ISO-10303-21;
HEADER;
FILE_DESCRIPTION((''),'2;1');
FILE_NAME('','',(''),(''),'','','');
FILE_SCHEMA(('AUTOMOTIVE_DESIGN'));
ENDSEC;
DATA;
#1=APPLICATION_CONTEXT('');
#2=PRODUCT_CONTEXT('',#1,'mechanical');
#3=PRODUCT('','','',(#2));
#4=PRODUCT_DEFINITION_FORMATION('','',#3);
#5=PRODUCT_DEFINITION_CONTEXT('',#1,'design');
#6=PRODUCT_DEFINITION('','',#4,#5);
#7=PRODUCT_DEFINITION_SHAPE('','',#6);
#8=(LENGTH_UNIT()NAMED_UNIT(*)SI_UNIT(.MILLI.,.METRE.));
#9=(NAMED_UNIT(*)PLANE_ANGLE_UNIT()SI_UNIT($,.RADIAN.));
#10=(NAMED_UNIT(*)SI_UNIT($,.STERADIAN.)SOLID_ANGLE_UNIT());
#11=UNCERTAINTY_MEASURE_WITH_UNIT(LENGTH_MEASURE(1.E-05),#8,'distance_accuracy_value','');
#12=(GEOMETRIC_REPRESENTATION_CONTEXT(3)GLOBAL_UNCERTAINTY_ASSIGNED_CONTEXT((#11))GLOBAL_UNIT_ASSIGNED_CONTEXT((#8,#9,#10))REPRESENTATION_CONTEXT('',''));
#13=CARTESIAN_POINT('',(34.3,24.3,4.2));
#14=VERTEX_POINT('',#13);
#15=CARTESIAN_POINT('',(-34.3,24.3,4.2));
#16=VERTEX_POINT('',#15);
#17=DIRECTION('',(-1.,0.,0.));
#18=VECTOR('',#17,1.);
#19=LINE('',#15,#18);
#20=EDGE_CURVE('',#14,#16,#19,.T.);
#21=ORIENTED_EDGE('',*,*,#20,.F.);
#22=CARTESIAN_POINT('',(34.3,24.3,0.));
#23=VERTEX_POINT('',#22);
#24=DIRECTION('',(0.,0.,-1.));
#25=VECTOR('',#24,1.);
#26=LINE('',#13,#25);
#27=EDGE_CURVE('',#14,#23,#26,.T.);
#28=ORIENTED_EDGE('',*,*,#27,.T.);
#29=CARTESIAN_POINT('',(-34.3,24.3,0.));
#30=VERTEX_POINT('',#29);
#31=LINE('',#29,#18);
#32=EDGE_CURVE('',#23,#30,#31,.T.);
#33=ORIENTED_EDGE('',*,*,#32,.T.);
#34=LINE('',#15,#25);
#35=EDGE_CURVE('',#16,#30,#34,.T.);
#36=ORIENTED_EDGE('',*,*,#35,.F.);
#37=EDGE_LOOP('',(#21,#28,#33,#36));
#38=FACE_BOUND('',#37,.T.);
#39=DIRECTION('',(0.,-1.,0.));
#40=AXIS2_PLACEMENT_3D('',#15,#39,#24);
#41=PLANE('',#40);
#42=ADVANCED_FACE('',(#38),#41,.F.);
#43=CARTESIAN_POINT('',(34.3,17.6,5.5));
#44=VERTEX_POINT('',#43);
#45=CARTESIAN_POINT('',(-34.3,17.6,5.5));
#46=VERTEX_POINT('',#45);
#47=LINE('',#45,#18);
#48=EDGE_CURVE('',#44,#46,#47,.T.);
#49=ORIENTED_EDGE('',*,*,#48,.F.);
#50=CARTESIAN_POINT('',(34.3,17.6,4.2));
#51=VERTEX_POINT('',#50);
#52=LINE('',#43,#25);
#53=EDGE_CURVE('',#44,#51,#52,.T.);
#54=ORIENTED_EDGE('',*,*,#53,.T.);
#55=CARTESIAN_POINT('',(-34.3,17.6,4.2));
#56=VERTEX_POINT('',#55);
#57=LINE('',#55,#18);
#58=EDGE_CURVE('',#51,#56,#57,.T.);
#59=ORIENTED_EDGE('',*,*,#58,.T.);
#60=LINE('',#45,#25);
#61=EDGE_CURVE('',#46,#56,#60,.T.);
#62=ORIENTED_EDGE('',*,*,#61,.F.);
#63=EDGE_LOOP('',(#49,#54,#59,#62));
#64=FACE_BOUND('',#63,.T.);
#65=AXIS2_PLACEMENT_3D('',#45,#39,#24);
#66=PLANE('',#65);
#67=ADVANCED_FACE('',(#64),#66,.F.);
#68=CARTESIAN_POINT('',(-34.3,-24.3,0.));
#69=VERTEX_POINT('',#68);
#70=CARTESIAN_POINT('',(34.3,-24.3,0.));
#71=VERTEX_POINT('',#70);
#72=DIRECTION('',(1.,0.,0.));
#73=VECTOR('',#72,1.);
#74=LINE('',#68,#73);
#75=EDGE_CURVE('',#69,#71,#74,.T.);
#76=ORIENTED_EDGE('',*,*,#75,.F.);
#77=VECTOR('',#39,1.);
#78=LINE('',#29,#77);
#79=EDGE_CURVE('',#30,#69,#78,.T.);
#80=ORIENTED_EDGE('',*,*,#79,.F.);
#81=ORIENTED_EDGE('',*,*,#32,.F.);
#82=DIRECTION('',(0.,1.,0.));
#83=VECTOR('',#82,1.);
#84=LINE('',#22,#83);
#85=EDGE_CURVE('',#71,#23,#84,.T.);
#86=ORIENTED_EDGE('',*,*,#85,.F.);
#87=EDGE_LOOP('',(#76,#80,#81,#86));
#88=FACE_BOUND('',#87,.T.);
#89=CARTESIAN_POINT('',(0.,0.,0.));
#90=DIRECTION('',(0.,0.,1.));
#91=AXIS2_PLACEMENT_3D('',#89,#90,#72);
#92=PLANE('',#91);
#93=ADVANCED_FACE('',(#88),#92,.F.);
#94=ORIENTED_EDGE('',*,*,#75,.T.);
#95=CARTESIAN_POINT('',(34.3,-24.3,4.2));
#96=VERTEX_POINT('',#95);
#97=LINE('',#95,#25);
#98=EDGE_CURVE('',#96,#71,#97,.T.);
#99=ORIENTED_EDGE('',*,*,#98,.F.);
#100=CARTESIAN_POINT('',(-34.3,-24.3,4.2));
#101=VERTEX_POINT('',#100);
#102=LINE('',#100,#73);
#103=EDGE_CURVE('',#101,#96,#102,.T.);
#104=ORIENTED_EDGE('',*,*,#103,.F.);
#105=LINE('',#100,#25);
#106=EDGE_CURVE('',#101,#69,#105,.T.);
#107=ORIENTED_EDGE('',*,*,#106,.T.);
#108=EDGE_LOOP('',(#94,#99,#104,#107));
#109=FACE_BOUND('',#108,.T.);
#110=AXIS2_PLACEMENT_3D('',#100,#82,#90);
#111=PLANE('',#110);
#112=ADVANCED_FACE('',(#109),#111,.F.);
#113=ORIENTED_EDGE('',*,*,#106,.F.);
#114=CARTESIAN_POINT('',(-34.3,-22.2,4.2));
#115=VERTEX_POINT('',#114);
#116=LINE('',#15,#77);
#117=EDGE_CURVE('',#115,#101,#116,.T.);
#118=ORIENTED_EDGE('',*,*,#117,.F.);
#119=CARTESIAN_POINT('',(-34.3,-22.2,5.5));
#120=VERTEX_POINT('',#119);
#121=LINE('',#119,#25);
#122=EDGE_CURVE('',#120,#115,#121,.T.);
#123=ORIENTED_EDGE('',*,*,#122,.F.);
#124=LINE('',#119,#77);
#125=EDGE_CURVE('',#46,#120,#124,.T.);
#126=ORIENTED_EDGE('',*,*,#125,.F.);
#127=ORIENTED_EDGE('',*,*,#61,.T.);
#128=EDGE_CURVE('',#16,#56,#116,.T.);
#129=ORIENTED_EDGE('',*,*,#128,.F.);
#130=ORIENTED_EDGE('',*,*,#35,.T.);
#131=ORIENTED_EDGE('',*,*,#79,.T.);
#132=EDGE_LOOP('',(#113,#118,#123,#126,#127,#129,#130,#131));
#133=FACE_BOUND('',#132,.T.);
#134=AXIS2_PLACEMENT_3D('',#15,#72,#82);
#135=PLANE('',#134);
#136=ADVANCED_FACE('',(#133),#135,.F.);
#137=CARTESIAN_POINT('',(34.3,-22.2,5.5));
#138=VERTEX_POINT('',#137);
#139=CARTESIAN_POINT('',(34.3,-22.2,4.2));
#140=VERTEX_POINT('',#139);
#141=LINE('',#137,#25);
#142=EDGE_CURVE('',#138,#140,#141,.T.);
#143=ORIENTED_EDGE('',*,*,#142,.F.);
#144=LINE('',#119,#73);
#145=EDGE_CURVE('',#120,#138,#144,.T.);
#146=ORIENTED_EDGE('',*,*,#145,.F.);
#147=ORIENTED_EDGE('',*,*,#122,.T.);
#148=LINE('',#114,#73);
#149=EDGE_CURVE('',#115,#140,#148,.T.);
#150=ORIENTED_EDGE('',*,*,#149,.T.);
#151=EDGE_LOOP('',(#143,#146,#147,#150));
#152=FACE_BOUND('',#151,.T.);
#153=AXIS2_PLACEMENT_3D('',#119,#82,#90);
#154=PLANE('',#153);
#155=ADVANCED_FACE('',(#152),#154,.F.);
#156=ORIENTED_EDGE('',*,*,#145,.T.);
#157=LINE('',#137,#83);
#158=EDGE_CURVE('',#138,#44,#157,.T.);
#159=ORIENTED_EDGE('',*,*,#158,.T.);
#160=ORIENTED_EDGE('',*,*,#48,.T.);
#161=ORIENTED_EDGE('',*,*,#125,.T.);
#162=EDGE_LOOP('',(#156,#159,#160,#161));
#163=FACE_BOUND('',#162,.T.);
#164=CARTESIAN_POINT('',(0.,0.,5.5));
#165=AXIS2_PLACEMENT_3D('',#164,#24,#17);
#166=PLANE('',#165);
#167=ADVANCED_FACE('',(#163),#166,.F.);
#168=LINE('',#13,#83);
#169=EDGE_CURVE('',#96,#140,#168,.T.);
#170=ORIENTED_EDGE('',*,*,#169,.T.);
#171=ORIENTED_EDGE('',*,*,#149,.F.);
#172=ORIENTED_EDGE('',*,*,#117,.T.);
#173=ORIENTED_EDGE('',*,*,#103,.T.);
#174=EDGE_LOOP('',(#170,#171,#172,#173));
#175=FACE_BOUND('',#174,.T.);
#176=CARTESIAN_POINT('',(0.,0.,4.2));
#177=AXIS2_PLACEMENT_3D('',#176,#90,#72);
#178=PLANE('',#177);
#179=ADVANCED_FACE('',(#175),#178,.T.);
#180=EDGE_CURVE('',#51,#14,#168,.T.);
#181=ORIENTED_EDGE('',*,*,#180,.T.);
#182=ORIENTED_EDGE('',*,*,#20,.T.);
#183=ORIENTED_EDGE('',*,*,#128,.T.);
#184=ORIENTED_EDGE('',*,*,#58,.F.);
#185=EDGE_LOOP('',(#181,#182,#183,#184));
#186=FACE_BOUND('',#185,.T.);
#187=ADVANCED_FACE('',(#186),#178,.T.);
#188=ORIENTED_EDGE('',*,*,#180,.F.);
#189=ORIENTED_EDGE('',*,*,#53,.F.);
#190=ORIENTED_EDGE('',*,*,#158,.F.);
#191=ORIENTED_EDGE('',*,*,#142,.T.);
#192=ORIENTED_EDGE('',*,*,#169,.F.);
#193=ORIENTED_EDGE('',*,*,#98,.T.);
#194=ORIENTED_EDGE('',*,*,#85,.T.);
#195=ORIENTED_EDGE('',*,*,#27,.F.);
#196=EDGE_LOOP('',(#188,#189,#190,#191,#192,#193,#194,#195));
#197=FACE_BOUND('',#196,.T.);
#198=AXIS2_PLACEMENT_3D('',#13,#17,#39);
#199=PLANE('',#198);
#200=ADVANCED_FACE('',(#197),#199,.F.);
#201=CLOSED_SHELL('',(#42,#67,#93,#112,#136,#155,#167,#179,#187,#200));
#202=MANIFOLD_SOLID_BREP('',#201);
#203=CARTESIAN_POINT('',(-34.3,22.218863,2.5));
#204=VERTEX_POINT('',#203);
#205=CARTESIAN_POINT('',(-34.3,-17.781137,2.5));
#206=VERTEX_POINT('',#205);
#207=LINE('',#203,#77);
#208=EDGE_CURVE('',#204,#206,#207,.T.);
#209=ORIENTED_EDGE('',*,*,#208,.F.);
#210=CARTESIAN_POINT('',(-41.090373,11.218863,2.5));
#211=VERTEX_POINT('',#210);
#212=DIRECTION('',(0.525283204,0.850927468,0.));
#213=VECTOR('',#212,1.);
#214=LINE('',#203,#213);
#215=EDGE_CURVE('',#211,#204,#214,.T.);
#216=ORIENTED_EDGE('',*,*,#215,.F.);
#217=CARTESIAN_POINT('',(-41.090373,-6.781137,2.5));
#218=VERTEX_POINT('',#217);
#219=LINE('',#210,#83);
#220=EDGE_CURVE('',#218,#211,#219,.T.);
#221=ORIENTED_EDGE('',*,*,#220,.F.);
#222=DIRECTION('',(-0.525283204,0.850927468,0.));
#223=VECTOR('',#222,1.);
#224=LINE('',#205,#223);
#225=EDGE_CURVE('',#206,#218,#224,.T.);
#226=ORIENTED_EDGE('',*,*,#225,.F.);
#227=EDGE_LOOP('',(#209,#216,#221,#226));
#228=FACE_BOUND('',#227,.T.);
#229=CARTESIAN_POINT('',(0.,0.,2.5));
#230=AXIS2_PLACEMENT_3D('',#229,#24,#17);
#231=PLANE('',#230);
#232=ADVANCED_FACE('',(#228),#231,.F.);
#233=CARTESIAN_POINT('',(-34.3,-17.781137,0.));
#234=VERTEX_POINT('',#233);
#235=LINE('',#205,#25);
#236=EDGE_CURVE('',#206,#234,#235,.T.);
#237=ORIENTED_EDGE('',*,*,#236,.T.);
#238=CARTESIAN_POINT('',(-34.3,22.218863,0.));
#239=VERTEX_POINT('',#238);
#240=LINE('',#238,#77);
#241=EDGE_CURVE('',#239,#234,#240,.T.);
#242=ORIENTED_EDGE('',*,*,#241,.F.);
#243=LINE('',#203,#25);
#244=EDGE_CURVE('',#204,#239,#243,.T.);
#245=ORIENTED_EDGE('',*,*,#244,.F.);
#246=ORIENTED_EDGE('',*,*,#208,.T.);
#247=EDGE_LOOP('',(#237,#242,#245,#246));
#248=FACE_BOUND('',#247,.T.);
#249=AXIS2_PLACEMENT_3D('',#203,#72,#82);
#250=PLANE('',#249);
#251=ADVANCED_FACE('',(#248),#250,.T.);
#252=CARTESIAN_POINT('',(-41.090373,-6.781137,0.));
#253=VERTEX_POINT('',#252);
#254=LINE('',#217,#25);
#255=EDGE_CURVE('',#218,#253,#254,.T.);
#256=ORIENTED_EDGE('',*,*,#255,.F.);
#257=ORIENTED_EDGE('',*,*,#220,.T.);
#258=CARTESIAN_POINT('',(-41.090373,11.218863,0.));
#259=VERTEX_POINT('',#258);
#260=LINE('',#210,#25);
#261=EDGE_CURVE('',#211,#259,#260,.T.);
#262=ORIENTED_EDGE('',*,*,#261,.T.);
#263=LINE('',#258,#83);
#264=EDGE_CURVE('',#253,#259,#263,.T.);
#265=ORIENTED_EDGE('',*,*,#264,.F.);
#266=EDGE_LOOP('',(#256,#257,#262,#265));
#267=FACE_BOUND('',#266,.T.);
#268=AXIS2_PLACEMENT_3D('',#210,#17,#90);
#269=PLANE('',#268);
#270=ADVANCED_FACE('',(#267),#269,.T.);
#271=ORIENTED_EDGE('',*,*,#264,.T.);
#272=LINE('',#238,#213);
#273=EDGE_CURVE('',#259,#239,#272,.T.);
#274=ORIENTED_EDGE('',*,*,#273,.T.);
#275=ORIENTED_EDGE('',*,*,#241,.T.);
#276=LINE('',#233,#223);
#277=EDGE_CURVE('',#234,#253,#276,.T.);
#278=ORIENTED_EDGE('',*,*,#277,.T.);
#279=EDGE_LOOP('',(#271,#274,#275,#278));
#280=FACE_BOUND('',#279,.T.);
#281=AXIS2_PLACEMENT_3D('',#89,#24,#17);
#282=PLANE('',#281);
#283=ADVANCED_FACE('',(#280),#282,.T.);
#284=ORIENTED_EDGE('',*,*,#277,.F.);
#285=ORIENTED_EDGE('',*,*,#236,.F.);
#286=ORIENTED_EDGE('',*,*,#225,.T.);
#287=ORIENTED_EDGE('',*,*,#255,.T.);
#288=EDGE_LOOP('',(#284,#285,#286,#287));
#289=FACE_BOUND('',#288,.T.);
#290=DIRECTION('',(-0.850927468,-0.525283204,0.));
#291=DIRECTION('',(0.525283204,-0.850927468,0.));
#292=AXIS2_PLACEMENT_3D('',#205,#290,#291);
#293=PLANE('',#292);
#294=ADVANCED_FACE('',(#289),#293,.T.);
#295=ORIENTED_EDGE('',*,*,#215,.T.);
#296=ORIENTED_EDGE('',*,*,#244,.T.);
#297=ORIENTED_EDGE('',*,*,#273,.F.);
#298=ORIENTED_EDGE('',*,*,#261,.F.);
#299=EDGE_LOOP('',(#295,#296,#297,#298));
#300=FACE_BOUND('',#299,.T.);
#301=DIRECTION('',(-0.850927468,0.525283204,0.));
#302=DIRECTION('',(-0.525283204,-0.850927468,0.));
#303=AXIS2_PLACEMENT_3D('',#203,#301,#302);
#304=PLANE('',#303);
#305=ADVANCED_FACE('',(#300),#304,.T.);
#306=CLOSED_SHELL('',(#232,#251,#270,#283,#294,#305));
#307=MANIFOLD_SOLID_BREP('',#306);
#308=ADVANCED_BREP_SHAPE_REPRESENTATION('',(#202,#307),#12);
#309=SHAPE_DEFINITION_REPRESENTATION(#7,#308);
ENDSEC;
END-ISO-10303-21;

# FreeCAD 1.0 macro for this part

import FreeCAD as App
import Part
import Sketcher
from FreeCAD import Vector


def add_polygon(sketch, points):
    """Adds a closed chain of lines whose ends are joined by coincident constraints."""
    first, n = sketch.GeometryCount, len(points)
    for a, b in zip(points, points[1:] + points[:1]):
        sketch.addGeometry(Part.LineSegment(App.Vector(*a, 0), App.Vector(*b, 0)), False)
    for i in range(n):
        sketch.addConstraint(Sketcher.Constraint("Coincident", first + i, 2, first + (i + 1) % n, 1))

doc = App.newDocument("Part")
body = doc.addObject("PartDesign::Body", "Body")

# Sketch on XY plane
sketch1 = doc.addObject("Sketcher::SketchObject", "Sketch")
body.addObject(sketch1)
sketch1.AttachmentSupport = (doc.XY_Plane, [""])
sketch1.MapMode = "FlatFace"
add_polygon(sketch1, [(-34.3, 24.3), (-34.3, -24.3), (34.3, -24.3), (34.3, 24.3)])  # lines 0-3
sketch1.addConstraint([
    Sketcher.Constraint("Vertical", 0),
    Sketcher.Constraint("Horizontal", 1),
    Sketcher.Constraint("Vertical", 2),
    Sketcher.Constraint("Horizontal", 3),
    Sketcher.Constraint("Symmetric", 0, 2, 2, 2, -1, 1),
    Sketcher.Constraint("DistanceX", 1, 1, 1, 2, 68.6),
    Sketcher.Constraint("DistanceY", 0, 2, 0, 1, 48.6),
])
pad1 = doc.addObject("PartDesign::Pad", "Pad")
body.addObject(pad1)
pad1.Profile = sketch1
pad1.Length = 4.2

# Sketch on XY plane
sketch2 = doc.addObject("Sketcher::SketchObject", "Sketch001")
body.addObject(sketch2)
sketch2.AttachmentSupport = (doc.XY_Plane, [""])
sketch2.MapMode = "FlatFace"
sketch2.AttachmentOffset = App.Placement(Vector(0, 0, 4.2), App.Rotation())
add_polygon(sketch2, [(-34.3, 17.6), (-34.3, -22.2), (34.3, -22.2), (34.3, 17.6)])  # lines 0-3
sketch2.addConstraint([
    Sketcher.Constraint("Vertical", 0),
    Sketcher.Constraint("Horizontal", 1),
    Sketcher.Constraint("Vertical", 2),
    Sketcher.Constraint("Horizontal", 3),
    Sketcher.Constraint("DistanceX", 1, 1, 1, 2, 68.6),
    Sketcher.Constraint("DistanceY", 0, 2, 0, 1, 39.8),
    Sketcher.Constraint("DistanceX", 0, 2, -1, 1, 34.3),
    Sketcher.Constraint("DistanceY", 0, 2, -1, 1, 22.2),
])
pad2 = doc.addObject("PartDesign::Pad", "Pad001")
body.addObject(pad2)
pad2.Profile = sketch2
pad2.Length = 1.3
body2 = doc.addObject("PartDesign::Body", "Body001")

# Sketch on XY plane
sketch3 = doc.addObject("Sketcher::SketchObject", "Sketch002")
body2.addObject(sketch3)
sketch3.AttachmentSupport = (doc.getObject("XY_Plane001"), [""])
sketch3.MapMode = "FlatFace"
add_polygon(sketch3, [(-41.090373, 11.218863), (-34.3, 22.218863), (-34.3, -17.781137), (-41.090373, -6.781137)])  # lines 0-3
sketch3.addConstraint([
    Sketcher.Constraint("Vertical", 1),
    Sketcher.Constraint("Vertical", 3),
    Sketcher.Constraint("Equal", 0, 2),
    Sketcher.Constraint("DistanceY", 1, 2, 1, 1, 40.0),
    Sketcher.Constraint("DistanceY", 3, 1, 3, 2, 18.0),
    Sketcher.Constraint("DistanceX", 0, 2, -1, 1, 34.3),
    Sketcher.Constraint("Distance", 0, 12.927071),
    Sketcher.Constraint("DistanceY", -1, 1, 0, 2, 22.218863),
])
pad3 = doc.addObject("PartDesign::Pad", "Pad002")
body2.addObject(pad3)
pad3.Profile = sketch3
pad3.Length = 2.5

doc.recompute()
